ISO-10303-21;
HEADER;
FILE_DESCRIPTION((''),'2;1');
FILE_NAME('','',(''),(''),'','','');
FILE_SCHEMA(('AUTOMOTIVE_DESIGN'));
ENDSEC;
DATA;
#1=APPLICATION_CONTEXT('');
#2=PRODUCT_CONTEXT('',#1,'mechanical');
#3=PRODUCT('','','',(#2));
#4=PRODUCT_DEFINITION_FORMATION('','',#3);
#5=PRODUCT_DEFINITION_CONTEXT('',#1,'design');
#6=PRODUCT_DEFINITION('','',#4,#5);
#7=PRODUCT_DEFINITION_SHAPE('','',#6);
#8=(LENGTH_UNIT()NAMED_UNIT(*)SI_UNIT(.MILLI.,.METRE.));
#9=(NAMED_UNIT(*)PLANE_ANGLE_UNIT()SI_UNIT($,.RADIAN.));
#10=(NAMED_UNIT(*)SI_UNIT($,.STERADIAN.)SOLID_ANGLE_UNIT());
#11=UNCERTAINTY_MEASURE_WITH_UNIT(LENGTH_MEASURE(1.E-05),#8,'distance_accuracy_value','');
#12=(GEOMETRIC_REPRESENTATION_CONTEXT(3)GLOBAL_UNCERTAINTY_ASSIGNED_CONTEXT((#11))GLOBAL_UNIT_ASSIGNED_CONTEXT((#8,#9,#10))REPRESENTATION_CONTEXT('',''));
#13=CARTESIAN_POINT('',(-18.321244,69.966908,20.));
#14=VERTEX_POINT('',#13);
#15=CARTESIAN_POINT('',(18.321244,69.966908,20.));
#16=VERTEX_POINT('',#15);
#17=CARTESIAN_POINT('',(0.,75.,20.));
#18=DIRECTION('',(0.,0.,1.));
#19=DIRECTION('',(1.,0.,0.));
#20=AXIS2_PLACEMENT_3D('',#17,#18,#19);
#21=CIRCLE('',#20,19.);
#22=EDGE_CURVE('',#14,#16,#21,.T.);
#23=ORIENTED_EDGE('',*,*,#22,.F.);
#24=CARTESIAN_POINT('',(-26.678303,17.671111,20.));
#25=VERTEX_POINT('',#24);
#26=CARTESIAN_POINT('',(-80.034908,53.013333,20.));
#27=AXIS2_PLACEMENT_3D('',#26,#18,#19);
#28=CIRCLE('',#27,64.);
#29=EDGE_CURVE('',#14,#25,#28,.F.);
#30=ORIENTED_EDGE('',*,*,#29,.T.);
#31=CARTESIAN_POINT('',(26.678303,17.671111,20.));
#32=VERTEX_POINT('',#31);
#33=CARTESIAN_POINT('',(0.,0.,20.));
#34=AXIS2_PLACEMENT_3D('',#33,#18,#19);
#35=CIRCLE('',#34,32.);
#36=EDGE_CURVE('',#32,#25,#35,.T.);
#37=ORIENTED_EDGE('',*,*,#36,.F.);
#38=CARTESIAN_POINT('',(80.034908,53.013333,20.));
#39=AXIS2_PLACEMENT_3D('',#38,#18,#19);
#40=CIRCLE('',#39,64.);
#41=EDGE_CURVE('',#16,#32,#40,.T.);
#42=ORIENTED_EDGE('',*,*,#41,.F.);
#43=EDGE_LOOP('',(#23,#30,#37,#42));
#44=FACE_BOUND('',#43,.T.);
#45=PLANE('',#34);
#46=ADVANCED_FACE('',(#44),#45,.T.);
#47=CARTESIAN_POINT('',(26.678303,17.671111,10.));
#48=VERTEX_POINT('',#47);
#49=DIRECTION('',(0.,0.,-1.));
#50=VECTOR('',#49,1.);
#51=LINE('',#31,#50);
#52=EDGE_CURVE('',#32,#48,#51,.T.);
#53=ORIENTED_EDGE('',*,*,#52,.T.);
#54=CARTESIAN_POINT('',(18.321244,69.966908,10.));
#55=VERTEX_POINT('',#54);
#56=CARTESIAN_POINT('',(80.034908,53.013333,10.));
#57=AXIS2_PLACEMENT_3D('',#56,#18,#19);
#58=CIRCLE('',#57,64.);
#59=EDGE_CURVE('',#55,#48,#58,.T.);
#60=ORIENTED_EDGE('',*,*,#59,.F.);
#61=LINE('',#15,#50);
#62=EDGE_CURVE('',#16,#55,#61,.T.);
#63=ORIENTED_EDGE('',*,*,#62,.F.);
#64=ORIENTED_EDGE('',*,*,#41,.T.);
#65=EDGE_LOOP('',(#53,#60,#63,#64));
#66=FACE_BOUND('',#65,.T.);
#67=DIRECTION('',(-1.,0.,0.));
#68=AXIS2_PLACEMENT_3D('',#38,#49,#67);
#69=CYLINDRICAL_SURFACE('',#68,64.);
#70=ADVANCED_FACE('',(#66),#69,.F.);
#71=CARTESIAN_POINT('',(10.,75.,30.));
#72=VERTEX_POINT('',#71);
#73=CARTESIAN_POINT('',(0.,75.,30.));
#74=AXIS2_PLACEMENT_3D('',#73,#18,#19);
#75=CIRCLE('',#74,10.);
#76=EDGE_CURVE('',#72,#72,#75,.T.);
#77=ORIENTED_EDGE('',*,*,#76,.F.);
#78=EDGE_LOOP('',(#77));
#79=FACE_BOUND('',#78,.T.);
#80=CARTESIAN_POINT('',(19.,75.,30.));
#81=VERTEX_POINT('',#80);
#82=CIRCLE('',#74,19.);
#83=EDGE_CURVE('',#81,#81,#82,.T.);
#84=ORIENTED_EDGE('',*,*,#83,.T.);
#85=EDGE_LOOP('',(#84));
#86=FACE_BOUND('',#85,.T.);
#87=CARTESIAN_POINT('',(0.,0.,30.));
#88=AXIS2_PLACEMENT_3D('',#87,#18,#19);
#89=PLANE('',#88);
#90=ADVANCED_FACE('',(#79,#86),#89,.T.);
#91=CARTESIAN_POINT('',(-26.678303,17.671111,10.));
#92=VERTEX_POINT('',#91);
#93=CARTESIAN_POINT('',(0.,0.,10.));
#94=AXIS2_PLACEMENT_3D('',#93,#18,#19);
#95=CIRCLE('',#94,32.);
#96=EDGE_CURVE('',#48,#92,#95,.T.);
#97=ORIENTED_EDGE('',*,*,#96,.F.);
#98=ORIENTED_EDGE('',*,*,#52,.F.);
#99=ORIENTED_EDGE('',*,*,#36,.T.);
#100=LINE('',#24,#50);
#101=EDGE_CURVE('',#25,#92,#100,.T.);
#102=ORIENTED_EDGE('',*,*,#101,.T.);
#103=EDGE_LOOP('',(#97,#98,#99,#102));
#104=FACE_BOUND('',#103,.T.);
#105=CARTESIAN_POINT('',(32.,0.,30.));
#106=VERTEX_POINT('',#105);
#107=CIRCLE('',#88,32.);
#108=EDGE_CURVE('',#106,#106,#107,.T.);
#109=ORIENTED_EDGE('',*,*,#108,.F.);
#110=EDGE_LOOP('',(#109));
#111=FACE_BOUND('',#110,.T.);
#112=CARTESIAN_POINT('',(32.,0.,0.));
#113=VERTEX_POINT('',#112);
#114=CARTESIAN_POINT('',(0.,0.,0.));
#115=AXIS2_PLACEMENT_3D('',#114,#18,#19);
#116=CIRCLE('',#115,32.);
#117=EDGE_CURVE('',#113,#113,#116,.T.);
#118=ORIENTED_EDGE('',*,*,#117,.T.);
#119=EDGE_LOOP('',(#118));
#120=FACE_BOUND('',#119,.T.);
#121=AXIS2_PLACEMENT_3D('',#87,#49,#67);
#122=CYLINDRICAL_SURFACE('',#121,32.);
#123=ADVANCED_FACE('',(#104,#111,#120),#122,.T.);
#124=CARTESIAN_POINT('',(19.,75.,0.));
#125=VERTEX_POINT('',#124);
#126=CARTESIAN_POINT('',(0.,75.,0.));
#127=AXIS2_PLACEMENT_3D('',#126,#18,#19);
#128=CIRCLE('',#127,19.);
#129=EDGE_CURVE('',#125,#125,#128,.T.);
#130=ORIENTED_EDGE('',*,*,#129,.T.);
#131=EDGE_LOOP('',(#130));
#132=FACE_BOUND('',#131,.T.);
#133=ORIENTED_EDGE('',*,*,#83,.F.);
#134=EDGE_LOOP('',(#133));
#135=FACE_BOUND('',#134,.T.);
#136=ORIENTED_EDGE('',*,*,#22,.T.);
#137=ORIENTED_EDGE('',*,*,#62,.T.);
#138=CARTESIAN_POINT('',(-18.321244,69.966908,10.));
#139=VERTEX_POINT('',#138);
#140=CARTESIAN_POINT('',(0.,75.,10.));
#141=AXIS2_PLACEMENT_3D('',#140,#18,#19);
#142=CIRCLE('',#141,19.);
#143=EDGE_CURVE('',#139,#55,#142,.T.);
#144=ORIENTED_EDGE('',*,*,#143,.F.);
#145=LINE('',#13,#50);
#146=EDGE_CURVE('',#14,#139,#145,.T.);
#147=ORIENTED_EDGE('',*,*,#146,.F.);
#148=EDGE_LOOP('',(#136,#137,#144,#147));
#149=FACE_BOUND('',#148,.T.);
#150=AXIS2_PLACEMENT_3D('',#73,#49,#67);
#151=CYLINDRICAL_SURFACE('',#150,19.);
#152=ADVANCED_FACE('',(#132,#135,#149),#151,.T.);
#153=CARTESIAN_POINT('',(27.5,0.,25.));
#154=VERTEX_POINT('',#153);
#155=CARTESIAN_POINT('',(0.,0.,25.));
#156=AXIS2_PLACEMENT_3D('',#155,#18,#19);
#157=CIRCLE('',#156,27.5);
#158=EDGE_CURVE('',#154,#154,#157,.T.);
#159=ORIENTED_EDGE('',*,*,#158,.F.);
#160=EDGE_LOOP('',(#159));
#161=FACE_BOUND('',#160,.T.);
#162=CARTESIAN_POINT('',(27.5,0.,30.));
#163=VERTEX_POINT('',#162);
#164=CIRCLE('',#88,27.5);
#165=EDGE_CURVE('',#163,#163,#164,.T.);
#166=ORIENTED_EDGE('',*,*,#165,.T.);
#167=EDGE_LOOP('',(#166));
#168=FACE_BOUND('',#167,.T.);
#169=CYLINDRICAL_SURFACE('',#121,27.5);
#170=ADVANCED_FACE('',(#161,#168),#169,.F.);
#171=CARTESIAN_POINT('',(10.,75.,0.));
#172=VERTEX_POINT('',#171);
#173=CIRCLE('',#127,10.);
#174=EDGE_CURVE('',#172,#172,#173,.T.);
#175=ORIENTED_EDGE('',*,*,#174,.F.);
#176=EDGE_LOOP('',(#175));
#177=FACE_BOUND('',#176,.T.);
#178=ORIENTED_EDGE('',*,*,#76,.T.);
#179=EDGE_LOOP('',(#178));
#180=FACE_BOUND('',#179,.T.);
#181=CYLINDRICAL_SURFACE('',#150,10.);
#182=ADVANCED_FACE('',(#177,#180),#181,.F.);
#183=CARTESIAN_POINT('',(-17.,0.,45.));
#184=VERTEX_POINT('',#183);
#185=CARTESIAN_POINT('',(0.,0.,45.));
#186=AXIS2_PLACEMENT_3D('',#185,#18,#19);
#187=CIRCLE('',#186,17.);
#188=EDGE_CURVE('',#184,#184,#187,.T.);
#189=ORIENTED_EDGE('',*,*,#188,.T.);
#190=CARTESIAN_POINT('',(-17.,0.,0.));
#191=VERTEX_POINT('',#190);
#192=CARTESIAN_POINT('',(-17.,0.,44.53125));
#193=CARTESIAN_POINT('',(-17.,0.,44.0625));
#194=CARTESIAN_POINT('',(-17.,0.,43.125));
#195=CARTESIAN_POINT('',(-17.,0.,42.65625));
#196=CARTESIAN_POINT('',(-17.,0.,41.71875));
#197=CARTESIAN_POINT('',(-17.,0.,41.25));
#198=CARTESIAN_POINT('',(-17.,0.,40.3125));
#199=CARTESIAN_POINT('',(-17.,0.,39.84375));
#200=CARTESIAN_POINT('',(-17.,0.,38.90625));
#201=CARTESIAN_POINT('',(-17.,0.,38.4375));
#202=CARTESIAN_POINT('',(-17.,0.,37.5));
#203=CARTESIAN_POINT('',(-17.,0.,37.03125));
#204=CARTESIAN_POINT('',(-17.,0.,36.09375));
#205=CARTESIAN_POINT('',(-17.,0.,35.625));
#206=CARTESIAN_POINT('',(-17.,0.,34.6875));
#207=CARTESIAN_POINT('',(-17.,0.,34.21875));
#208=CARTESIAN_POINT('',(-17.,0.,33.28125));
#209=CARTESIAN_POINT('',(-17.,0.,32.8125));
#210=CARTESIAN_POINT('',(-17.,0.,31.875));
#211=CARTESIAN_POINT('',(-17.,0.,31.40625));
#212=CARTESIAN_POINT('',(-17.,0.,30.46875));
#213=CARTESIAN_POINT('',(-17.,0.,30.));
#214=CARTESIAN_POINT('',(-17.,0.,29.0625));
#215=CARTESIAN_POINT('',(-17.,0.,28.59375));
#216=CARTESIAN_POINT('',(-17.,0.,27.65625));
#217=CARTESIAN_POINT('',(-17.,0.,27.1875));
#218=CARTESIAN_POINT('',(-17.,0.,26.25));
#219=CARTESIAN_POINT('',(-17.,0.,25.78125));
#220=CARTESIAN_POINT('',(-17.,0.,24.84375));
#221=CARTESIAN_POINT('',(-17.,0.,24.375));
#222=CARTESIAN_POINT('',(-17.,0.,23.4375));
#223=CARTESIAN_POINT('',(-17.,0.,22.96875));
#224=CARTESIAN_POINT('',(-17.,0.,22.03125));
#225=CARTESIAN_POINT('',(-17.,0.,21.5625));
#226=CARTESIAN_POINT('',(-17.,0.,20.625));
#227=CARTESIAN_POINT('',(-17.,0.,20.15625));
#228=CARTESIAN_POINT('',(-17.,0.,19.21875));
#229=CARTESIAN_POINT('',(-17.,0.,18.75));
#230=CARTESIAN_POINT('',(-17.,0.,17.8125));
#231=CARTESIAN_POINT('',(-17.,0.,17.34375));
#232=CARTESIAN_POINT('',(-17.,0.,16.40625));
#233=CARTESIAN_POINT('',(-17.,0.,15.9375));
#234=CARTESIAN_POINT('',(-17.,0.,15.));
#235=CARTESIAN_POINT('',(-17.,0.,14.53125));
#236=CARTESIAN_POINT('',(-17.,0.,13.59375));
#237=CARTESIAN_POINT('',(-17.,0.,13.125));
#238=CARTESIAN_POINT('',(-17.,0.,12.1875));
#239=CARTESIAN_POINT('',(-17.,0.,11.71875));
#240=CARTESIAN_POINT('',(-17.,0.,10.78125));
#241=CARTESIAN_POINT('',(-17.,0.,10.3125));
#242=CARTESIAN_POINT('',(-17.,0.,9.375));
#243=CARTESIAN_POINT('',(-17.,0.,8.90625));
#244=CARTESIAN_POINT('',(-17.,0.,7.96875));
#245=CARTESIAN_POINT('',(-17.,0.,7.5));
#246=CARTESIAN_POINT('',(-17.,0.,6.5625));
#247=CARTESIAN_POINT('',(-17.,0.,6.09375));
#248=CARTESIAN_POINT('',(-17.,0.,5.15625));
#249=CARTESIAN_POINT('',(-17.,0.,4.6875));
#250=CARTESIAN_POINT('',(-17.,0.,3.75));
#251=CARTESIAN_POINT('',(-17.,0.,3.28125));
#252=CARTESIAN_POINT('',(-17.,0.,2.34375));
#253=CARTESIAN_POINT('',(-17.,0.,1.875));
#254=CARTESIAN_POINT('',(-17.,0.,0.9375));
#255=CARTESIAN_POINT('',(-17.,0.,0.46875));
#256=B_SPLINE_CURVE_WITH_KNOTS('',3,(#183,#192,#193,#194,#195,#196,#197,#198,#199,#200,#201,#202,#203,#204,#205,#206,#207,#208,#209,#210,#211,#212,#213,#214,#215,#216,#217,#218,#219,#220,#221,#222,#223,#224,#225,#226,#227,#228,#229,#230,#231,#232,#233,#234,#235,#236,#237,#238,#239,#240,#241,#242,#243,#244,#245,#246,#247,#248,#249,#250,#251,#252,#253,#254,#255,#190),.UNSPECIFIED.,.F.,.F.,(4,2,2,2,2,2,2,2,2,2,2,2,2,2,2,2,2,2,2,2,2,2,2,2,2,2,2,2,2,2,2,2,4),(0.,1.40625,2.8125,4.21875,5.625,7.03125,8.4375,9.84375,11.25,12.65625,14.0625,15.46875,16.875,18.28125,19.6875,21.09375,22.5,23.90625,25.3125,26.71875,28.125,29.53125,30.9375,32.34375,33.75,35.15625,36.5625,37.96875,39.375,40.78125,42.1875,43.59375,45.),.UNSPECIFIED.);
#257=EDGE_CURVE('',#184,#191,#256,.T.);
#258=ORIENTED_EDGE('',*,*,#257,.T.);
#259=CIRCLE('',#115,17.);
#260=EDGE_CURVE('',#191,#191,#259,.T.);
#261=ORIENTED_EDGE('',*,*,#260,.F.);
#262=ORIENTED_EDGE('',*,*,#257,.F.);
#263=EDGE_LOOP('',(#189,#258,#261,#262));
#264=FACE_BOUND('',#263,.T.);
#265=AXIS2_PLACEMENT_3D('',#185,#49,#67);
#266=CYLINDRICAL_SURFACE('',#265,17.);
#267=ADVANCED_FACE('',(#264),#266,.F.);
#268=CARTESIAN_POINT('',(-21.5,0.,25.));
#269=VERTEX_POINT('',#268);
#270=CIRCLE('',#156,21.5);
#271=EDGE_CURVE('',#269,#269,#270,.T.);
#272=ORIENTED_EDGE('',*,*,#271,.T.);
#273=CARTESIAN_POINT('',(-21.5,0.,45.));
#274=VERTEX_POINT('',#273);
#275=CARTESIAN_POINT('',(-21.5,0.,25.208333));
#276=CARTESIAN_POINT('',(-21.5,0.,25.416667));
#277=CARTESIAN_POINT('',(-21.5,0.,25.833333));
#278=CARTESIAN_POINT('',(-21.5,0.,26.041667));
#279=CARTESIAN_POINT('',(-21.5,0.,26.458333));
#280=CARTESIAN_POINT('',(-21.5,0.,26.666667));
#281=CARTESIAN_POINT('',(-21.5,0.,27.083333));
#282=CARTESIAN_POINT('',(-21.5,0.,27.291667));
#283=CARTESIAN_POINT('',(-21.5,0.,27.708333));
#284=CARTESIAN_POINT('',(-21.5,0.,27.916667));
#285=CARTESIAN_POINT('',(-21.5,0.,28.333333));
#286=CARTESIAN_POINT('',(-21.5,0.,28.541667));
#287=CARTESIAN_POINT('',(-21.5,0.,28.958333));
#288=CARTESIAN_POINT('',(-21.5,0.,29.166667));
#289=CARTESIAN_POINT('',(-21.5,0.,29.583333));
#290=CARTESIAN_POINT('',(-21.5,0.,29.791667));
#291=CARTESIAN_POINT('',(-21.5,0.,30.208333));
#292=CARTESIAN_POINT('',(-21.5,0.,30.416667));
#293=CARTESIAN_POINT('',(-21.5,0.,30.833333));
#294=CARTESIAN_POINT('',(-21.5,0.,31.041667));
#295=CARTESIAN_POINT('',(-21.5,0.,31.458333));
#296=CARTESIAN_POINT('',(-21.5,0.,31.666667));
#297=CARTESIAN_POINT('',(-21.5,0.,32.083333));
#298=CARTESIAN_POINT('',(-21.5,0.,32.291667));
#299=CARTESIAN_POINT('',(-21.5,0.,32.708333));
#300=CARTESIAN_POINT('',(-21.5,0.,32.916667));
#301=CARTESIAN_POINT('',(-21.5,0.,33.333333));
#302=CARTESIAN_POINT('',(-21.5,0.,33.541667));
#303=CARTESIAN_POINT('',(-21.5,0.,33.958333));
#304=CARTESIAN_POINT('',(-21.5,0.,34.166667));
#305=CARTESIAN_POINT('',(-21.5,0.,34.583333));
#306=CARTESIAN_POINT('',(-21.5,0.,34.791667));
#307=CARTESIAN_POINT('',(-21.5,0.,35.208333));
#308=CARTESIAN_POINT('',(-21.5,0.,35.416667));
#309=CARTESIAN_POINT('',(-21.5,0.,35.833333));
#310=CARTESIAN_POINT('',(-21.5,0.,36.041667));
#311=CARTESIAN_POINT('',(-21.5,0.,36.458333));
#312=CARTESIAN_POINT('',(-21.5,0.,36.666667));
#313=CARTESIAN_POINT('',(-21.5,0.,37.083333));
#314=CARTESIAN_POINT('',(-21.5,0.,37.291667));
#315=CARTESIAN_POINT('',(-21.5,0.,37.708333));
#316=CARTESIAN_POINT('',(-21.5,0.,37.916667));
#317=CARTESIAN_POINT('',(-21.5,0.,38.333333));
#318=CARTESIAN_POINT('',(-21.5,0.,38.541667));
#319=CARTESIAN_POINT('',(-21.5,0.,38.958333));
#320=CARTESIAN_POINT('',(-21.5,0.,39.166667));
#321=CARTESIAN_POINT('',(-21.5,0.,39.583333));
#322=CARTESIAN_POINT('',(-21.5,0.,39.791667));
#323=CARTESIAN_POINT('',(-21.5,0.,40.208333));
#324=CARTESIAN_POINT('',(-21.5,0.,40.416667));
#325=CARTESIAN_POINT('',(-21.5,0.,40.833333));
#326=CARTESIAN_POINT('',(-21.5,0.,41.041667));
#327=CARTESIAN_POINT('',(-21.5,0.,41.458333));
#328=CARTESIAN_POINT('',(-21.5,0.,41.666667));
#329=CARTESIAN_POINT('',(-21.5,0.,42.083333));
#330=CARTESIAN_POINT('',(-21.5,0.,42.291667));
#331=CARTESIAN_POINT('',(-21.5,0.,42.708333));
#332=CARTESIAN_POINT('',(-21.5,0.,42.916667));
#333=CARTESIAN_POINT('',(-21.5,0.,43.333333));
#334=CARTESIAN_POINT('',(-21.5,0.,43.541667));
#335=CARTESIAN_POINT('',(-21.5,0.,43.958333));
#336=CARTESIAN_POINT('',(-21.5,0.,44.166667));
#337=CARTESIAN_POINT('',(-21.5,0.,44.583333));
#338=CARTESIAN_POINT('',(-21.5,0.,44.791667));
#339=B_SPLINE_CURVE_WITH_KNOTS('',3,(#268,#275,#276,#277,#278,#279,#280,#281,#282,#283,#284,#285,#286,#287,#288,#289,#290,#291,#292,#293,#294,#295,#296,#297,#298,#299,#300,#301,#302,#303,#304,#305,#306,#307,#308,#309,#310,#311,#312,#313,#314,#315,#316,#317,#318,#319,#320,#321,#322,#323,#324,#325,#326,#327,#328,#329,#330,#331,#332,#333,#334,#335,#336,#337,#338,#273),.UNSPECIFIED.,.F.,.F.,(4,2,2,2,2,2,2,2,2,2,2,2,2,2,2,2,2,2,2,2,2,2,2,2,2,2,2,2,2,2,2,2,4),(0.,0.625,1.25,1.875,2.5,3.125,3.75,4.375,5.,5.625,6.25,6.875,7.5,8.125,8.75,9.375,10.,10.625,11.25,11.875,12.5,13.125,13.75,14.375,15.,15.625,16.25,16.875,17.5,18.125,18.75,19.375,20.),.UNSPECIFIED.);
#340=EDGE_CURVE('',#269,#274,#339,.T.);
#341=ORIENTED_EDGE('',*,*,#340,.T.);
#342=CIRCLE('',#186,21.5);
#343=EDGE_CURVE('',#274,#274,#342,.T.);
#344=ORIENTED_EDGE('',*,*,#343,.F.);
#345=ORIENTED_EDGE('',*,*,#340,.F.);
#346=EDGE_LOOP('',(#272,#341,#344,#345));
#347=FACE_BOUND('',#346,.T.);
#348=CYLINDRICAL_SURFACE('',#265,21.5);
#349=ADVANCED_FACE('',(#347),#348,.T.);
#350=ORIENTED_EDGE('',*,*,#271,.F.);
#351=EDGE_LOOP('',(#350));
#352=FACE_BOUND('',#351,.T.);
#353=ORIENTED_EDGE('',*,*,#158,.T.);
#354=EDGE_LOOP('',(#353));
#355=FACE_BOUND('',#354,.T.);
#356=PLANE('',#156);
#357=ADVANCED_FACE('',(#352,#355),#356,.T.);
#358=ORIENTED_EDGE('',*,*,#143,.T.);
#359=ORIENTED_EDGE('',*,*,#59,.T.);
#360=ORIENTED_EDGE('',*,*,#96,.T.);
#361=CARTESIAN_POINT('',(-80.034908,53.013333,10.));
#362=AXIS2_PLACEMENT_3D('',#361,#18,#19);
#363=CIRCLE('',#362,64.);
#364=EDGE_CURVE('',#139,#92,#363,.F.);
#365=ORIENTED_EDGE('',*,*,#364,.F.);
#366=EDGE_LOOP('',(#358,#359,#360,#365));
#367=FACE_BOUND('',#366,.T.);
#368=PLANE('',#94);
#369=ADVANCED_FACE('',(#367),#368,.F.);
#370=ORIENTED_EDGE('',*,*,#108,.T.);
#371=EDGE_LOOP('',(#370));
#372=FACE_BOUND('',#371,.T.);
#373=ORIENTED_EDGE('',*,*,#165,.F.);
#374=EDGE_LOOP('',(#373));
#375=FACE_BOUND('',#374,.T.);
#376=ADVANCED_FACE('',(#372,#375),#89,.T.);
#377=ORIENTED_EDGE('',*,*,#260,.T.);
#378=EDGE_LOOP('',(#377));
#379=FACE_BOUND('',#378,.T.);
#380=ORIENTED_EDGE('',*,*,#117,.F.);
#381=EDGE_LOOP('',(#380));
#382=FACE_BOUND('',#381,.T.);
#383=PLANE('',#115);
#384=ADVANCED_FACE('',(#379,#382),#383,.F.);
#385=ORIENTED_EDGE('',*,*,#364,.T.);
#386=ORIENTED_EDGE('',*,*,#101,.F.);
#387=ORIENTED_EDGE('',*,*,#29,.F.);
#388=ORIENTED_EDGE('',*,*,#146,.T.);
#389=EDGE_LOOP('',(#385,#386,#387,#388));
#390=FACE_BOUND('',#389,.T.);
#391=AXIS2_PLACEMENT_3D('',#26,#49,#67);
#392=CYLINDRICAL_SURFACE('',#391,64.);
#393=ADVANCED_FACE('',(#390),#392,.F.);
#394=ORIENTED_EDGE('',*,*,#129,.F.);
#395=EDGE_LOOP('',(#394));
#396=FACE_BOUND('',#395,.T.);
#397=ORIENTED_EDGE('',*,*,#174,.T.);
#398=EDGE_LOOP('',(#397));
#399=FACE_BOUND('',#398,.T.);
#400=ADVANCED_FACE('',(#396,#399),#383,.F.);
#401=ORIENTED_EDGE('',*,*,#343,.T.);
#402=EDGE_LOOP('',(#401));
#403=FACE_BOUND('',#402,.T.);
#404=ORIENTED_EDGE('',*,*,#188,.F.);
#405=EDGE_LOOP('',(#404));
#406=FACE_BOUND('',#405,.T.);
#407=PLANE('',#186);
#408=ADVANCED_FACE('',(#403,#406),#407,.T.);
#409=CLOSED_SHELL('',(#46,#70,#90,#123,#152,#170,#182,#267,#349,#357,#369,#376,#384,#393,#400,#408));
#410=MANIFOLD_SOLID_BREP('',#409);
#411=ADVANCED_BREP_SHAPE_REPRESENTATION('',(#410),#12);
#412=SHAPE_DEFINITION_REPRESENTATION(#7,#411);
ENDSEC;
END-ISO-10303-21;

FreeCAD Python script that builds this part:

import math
import FreeCAD as App
import Part
import Sketcher

V = App.Vector
Q = App.Units.Quantity

doc = App.newDocument("Part")
body = doc.addObject("PartDesign::Body", "Body")

# Sketch on XY plane
sketch1 = doc.addObject("Sketcher::SketchObject", "Sketch")
body.addObject(sketch1)
sketch1.AttachmentSupport = (doc.XY_Plane, [""])
sketch1.MapMode = "FlatFace"
sketch1.addGeometry([
    Part.Circle(V(0, 0, 0), V(0, 0, 1), 32),
    Part.Circle(V(0, 0, 0), V(0, 0, 1), 27.5),
], False)
sketch1.addConstraint([
    Sketcher.Constraint("Coincident", 0, 3, -1, 1),
    Sketcher.Constraint("Coincident", 1, 3, -1, 1),
    Sketcher.Constraint("Diameter", 0, Q("64 mm")),
    Sketcher.Constraint("Diameter", 1, Q("55 mm")),
])
pad1 = doc.addObject("PartDesign::Pad", "Pad")
body.addObject(pad1)
pad1.Profile = sketch1
pad1.Length = 30

# Sketch on XY plane
sketch2 = doc.addObject("Sketcher::SketchObject", "Sketch001")
body.addObject(sketch2)
sketch2.AttachmentSupport = (doc.XY_Plane, [""])
sketch2.MapMode = "FlatFace"
sketch2.addGeometry([
    Part.Circle(V(0, 0, 0), V(0, 0, 1), 27.5),
    Part.Circle(V(0, 0, 0), V(0, 0, 1), 21.5),
], False)
sketch2.addConstraint([
    Sketcher.Constraint("Coincident", 0, 3, -1, 1),
    Sketcher.Constraint("Coincident", 1, 3, -1, 1),
    Sketcher.Constraint("Diameter", 0, Q("55 mm")),
    Sketcher.Constraint("Diameter", 1, Q("43 mm")),
])
pad2 = doc.addObject("PartDesign::Pad", "Pad001")
body.addObject(pad2)
pad2.Profile = sketch2
pad2.Length = 25

# Sketch on XY plane
sketch3 = doc.addObject("Sketcher::SketchObject", "Sketch002")
body.addObject(sketch3)
sketch3.AttachmentSupport = (doc.XY_Plane, [""])
sketch3.MapMode = "FlatFace"
sketch3.addGeometry([
    Part.Circle(V(0, 0, 0), V(0, 0, 1), 21.5),
    Part.Circle(V(0, 0, 0), V(0, 0, 1), 17),
], False)
sketch3.addConstraint([
    Sketcher.Constraint("Coincident", 0, 3, -1, 1),
    Sketcher.Constraint("Coincident", 1, 3, -1, 1),
    Sketcher.Constraint("Diameter", 0, Q("43 mm")),
    Sketcher.Constraint("Diameter", 1, Q("34 mm")),
])
pad3 = doc.addObject("PartDesign::Pad", "Pad002")
body.addObject(pad3)
pad3.Profile = sketch3
pad3.Length = 45
body2 = doc.addObject("PartDesign::Body", "Body001")

# Sketch on XY plane
sketch4 = doc.addObject("Sketcher::SketchObject", "Sketch003")
body2.addObject(sketch4)
sketch4.AttachmentSupport = (doc.getObject("XY_Plane001"), [""])
sketch4.MapMode = "FlatFace"
sketch4.addGeometry([
    Part.Circle(V(0, 75, 0), V(0, 0, 1), 19),
    Part.Circle(V(0, 75, 0), V(0, 0, 1), 10),
], False)
sketch4.addConstraint([
    Sketcher.Constraint("Coincident", 1, 3, 0, 3),
    Sketcher.Constraint("PointOnObject", 0, 3, -2),
    Sketcher.Constraint("Diameter", 0, Q("38 mm")),
    Sketcher.Constraint("Diameter", 1, Q("20 mm")),
    Sketcher.Constraint("DistanceY", -1, 1, 0, 3, Q("75 mm")),
])
pad4 = doc.addObject("PartDesign::Pad", "Pad003")
body2.addObject(pad4)
pad4.Profile = sketch4
pad4.Length = 30
body.AllowCompound = True
doc.recompute()

boolean = doc.addObject("PartDesign::Boolean", "Boolean")
body.addObject(boolean)
boolean.Type = "Fuse"
boolean.addObjects([body2])

# Sketch on XY plane
sketch5 = doc.addObject("Sketcher::SketchObject", "Sketch004")
body.addObject(sketch5)
sketch5.AttachmentSupport = (doc.XY_Plane, [""])
sketch5.MapMode = "FlatFace"
sketch5.AttachmentOffset = App.Placement(V(0, 0, 10), App.Rotation())
sketch5.addGeometry([
    Part.ArcOfCircle(Part.Circle(V(0, 75, 0), V(0, 0, 1), 19), math.radians(-90), math.radians(-15.360987)),  # 0
    Part.ArcOfCircle(Part.Circle(V(0, 75, 0), V(0, 0, 1), 19), math.radians(-164.639013), math.radians(-90)),  # 1
    Part.ArcOfCircle(Part.Circle(V(-80.034908, 53.013333, 0), V(0, 0, 1), 64), math.radians(-33.519601), math.radians(15.360987)),  # 2
    Part.ArcOfCircle(Part.Circle(V(0, 0, 0), V(0, 0, 1), 32), math.radians(90), math.radians(146.480399)),  # 3
    Part.ArcOfCircle(Part.Circle(V(0, 0, 0), V(0, 0, 1), 32), math.radians(33.519601), math.radians(90)),  # 4
    Part.ArcOfCircle(Part.Circle(V(80.034908, 53.013333, 0), V(0, 0, 1), 64), math.radians(164.639013), math.radians(213.519601)),  # 5
], False)
sketch5.addConstraint([
    Sketcher.Constraint("Tangent", 0, 1, 1, 2),
    Sketcher.Constraint("Tangent", 1, 1, 2, 2),
    Sketcher.Constraint("Tangent", 2, 1, 3, 2),
    Sketcher.Constraint("Tangent", 3, 1, 4, 2),
    Sketcher.Constraint("Tangent", 4, 1, 5, 2),
    Sketcher.Constraint("Tangent", 5, 1, 0, 2),
    Sketcher.Constraint("Coincident", 3, 3, -1, 1),
    Sketcher.Constraint("Equal", 0, 1),
    Sketcher.Constraint("Equal", 3, 4),
    Sketcher.Constraint("Equal", 2, 5),
    Sketcher.Constraint("PointOnObject", 0, 3, -2),
    Sketcher.Constraint("PointOnObject", 0, 1, -2),
    Sketcher.Constraint("PointOnObject", 3, 1, -2),
    Sketcher.Constraint("Radius", 0, Q("19 mm")),
    Sketcher.Constraint("Radius", 2, Q("64 mm")),
    Sketcher.Constraint("Radius", 3, Q("32 mm")),
    Sketcher.Constraint("DistanceY", -1, 1, 0, 3, Q("75 mm")),
])
pad5 = doc.addObject("PartDesign::Pad", "Pad004")
body.addObject(pad5)
pad5.Profile = sketch5
pad5.Length = 10

doc.recompute()
